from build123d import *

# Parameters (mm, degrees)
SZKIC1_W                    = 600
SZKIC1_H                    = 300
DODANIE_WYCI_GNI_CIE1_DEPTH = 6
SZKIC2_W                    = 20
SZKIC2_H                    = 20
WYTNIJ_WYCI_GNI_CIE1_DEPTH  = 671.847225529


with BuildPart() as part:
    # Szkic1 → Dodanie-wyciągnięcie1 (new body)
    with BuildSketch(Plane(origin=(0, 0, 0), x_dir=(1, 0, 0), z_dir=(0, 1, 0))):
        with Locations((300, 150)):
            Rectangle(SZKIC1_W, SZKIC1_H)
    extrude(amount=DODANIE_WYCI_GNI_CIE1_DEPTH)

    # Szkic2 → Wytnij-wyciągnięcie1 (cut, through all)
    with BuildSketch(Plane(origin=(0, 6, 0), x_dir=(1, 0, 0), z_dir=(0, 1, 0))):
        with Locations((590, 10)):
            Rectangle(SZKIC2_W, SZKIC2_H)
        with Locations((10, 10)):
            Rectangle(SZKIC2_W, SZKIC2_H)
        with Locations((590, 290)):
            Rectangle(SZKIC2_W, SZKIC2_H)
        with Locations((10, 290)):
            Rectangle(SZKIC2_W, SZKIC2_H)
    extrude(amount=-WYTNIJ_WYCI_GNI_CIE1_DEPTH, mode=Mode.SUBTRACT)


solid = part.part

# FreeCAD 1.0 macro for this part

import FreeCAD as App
import Part
import Sketcher

doc = App.newDocument("Part")
body = doc.addObject("PartDesign::Body", "Body")

sketch1 = body.newObject("Sketcher::SketchObject", "Sketch")
sketch1.AttachmentSupport = (doc.getObject("XZ_Plane"), [""])
sketch1.MapMode = "FlatFace"
sketch1.addGeometry([
    Part.LineSegment(App.Vector(0, -300, 0), App.Vector(0, 0, 0)),
    Part.LineSegment(App.Vector(0, 0, 0), App.Vector(600, 0, 0)),
    Part.LineSegment(App.Vector(600, 0, 0), App.Vector(600, -300, 0)),
    Part.LineSegment(App.Vector(600, -300, 0), App.Vector(0, -300, 0)),
], False)
sketch1.addConstraint([
    Sketcher.Constraint("Coincident", 0, 2, 1, 1),
    Sketcher.Constraint("Coincident", 1, 2, 2, 1),
    Sketcher.Constraint("Coincident", 2, 2, 3, 1),
    Sketcher.Constraint("Coincident", 3, 2, 0, 1),
    Sketcher.Constraint("Vertical", 0),
    Sketcher.Constraint("Horizontal", 1),
    Sketcher.Constraint("Vertical", 2),
    Sketcher.Constraint("Horizontal", 3),
    Sketcher.Constraint("Coincident", 0, 2, -1, 1),
    Sketcher.Constraint("DistanceX", 1, 1, 1, 2, 600.0),
    Sketcher.Constraint("DistanceY", 0, 1, 0, 2, 300.0),
])
pad1 = body.newObject("PartDesign::Pad", "Pad")
pad1.Profile = sketch1
pad1.Length = 6
pad1.Reversed = True

sketch2 = body.newObject("Sketcher::SketchObject", "Sketch001")
sketch2.AttachmentSupport = (doc.getObject("XZ_Plane"), [""])
sketch2.MapMode = "FlatFace"
sketch2.AttachmentOffset = App.Placement(App.Vector(0, 0, -6), App.Rotation())
sketch2.addGeometry([
    Part.LineSegment(App.Vector(580, -20, 0), App.Vector(580, 0, 0)),
    Part.LineSegment(App.Vector(580, 0, 0), App.Vector(600, 0, 0)),
    Part.LineSegment(App.Vector(600, 0, 0), App.Vector(600, -20, 0)),
    Part.LineSegment(App.Vector(600, -20, 0), App.Vector(580, -20, 0)),
    Part.LineSegment(App.Vector(0, -20, 0), App.Vector(0, 0, 0)),
    Part.LineSegment(App.Vector(0, 0, 0), App.Vector(20, 0, 0)),
    Part.LineSegment(App.Vector(20, 0, 0), App.Vector(20, -20, 0)),
    Part.LineSegment(App.Vector(20, -20, 0), App.Vector(0, -20, 0)),
    Part.LineSegment(App.Vector(580, -300, 0), App.Vector(580, -280, 0)),
    Part.LineSegment(App.Vector(580, -280, 0), App.Vector(600, -280, 0)),
    Part.LineSegment(App.Vector(600, -280, 0), App.Vector(600, -300, 0)),
    Part.LineSegment(App.Vector(600, -300, 0), App.Vector(580, -300, 0)),
    Part.LineSegment(App.Vector(0, -300, 0), App.Vector(0, -280, 0)),
    Part.LineSegment(App.Vector(0, -280, 0), App.Vector(20, -280, 0)),
    Part.LineSegment(App.Vector(20, -280, 0), App.Vector(20, -300, 0)),
    Part.LineSegment(App.Vector(20, -300, 0), App.Vector(0, -300, 0)),
], False)
sketch2.addConstraint([
    Sketcher.Constraint("Coincident", 0, 2, 1, 1),
    Sketcher.Constraint("Coincident", 1, 2, 2, 1),
    Sketcher.Constraint("Coincident", 2, 2, 3, 1),
    Sketcher.Constraint("Coincident", 3, 2, 0, 1),
    Sketcher.Constraint("Coincident", 4, 2, 5, 1),
    Sketcher.Constraint("Coincident", 5, 2, 6, 1),
    Sketcher.Constraint("Coincident", 6, 2, 7, 1),
    Sketcher.Constraint("Coincident", 7, 2, 4, 1),
    Sketcher.Constraint("Coincident", 8, 2, 9, 1),
    Sketcher.Constraint("Coincident", 9, 2, 10, 1),
    Sketcher.Constraint("Coincident", 10, 2, 11, 1),
    Sketcher.Constraint("Coincident", 11, 2, 8, 1),
    Sketcher.Constraint("Coincident", 12, 2, 13, 1),
    Sketcher.Constraint("Coincident", 13, 2, 14, 1),
    Sketcher.Constraint("Coincident", 14, 2, 15, 1),
    Sketcher.Constraint("Coincident", 15, 2, 12, 1),
    Sketcher.Constraint("Vertical", 0),
    Sketcher.Constraint("Horizontal", 1),
    Sketcher.Constraint("Vertical", 2),
    Sketcher.Constraint("Horizontal", 3),
    Sketcher.Constraint("Vertical", 4),
    Sketcher.Constraint("Horizontal", 5),
    Sketcher.Constraint("Vertical", 6),
    Sketcher.Constraint("Horizontal", 7),
    Sketcher.Constraint("Vertical", 8),
    Sketcher.Constraint("Horizontal", 9),
    Sketcher.Constraint("Vertical", 10),
    Sketcher.Constraint("Horizontal", 11),
    Sketcher.Constraint("Vertical", 12),
    Sketcher.Constraint("Horizontal", 13),
    Sketcher.Constraint("Vertical", 14),
    Sketcher.Constraint("Horizontal", 15),
    Sketcher.Constraint("Coincident", 4, 2, -1, 1),
    Sketcher.Constraint("PointOnObject", 0, 2, -1),
    Sketcher.Constraint("PointOnObject", 12, 2, -2),
    Sketcher.Constraint("Horizontal", 3, 2, 6, 2),
    Sketcher.Constraint("Horizontal", 9, 2, 12, 2),
    Sketcher.Constraint("Horizontal", 11, 2, 14, 2),
    Sketcher.Constraint("Vertical", 3, 2, 8, 2),
    Sketcher.Constraint("Vertical", 2, 2, 9, 2),
    Sketcher.Constraint("Vertical", 6, 2, 13, 2),
    Sketcher.Constraint("Equal", 3, 5),
    Sketcher.Constraint("Equal", 15, 0),
    Sketcher.Constraint("Equal", 6, 8),
    Sketcher.Constraint("DistanceX", 1, 1, 1, 2, 20.0),
    Sketcher.Constraint("DistanceX", -1, 1, 0, 2, 580.0),
    Sketcher.Constraint("DistanceY", 8, 2, -1, 1, 280.0),
])
pocket1 = body.newObject("PartDesign::Pocket", "Pocket")
pocket1.Profile = sketch2
pocket1.Type = "ThroughAll"
pocket1.Reversed = True

doc.recompute()
